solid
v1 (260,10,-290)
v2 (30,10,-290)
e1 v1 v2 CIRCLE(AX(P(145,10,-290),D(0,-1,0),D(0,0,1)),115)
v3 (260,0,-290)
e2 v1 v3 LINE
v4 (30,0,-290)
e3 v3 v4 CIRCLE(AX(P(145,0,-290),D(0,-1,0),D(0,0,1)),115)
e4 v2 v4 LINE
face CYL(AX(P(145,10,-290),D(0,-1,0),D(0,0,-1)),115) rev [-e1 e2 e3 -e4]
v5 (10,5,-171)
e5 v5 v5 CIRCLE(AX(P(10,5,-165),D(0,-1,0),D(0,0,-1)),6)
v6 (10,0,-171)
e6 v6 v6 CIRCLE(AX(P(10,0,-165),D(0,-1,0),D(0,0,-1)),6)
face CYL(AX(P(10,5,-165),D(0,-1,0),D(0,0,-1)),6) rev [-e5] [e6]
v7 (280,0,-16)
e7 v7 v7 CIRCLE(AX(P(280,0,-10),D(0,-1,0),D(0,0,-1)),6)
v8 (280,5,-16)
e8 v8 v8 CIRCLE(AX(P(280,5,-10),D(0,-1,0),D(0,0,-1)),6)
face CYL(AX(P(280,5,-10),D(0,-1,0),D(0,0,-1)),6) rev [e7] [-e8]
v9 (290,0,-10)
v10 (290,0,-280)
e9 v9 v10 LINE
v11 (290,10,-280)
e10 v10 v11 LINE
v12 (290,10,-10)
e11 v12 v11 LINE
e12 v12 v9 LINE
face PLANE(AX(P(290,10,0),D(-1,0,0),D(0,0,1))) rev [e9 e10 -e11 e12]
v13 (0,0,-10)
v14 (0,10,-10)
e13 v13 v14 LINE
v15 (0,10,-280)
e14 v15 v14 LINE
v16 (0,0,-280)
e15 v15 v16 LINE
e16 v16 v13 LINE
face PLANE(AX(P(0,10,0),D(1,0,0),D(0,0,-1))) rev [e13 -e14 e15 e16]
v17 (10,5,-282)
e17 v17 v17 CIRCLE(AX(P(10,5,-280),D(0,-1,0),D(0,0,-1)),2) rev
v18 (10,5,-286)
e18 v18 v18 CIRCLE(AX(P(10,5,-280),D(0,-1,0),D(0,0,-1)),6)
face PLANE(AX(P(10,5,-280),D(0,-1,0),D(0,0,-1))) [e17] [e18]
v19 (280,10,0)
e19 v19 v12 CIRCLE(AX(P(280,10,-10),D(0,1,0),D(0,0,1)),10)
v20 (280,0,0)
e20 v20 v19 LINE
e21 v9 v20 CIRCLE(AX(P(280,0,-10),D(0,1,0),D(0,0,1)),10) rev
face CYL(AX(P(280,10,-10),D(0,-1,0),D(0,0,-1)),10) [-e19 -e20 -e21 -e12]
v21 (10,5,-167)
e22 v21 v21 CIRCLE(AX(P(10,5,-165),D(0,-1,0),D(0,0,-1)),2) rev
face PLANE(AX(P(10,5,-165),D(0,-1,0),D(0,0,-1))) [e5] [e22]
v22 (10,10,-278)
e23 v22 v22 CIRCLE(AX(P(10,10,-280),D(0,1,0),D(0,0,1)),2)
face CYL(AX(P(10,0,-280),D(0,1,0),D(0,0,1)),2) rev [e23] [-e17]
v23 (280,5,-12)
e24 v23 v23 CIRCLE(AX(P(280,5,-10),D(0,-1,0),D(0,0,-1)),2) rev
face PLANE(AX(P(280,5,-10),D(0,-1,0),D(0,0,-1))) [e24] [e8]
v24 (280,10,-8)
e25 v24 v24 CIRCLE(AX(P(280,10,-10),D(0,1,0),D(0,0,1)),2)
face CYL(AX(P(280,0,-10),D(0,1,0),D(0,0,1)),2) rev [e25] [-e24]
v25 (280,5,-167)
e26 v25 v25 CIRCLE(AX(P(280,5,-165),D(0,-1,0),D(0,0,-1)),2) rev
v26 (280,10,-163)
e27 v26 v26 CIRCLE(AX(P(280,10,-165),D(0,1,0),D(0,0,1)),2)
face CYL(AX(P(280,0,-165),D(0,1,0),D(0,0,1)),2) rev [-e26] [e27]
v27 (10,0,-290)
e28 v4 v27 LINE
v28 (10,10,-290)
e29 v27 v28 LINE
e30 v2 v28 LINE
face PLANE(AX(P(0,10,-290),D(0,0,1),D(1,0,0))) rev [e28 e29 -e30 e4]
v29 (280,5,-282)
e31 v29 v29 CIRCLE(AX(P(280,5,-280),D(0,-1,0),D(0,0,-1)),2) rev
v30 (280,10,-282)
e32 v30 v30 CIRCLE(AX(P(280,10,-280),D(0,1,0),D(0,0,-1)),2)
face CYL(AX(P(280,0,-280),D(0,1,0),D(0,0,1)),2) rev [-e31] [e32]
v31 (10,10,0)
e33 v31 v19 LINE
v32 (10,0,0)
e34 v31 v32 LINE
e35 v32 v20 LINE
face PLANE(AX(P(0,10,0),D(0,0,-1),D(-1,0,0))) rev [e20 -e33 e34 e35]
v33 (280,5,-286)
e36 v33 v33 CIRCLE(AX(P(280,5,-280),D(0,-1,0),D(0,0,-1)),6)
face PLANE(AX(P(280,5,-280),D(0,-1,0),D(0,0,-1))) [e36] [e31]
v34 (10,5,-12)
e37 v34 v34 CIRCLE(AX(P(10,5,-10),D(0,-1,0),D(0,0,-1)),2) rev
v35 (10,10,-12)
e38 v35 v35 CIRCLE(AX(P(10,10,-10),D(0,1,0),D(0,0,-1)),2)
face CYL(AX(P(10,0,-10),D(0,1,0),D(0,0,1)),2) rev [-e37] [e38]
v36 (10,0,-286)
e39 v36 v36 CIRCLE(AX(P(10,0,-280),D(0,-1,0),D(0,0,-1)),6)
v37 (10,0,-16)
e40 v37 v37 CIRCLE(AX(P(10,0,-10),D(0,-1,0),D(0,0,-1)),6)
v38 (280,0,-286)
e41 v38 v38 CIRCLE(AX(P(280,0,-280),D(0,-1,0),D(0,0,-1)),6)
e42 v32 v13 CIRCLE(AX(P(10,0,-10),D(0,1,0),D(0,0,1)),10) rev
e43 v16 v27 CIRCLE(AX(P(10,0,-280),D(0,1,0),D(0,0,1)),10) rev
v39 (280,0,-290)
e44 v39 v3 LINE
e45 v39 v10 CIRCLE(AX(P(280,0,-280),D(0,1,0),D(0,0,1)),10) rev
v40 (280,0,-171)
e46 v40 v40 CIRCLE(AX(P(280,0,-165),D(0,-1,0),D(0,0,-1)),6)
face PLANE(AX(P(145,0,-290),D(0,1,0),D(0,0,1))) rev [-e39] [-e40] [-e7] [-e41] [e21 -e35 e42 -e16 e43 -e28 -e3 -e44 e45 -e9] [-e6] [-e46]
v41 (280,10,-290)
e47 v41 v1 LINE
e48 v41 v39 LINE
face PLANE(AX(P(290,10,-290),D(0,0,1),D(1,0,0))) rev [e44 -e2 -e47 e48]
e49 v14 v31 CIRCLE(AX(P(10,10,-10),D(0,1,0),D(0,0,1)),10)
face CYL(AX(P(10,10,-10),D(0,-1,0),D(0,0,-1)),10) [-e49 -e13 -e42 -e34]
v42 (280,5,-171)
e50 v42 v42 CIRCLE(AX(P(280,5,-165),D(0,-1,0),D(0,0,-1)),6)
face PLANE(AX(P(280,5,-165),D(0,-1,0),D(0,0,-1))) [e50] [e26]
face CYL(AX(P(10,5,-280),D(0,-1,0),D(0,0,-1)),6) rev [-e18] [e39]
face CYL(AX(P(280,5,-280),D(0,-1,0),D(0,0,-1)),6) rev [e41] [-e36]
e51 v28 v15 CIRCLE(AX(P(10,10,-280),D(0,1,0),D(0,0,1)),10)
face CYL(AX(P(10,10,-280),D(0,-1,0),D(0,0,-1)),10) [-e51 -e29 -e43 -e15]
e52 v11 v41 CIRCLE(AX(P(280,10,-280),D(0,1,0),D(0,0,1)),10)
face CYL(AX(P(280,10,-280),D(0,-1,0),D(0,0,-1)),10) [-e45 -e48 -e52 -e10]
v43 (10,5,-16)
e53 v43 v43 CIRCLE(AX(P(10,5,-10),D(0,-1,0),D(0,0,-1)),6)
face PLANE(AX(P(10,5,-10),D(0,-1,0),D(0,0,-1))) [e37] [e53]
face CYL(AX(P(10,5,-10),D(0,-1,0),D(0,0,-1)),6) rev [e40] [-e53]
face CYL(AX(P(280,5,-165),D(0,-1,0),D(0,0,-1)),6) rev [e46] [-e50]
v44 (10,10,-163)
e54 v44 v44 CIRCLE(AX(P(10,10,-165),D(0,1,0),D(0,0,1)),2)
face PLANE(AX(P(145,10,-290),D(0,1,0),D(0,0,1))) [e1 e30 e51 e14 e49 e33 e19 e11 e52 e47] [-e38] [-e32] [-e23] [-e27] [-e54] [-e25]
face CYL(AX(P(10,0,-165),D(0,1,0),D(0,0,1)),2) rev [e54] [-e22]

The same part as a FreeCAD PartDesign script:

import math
import FreeCAD as App
import Part
import Sketcher

V = App.Vector
Q = App.Units.Quantity


def edges_at(feature, points):
    """Names of the edges that pass closest to the given points."""
    edges = feature.Shape.Edges
    near = lambda p: min(range(len(edges)), key=lambda i: edges[i].distToShape(Part.Vertex(*p))[0])
    return sorted({f"Edge{near(p) + 1}" for p in points})

doc = App.newDocument("Part")
body = doc.addObject("PartDesign::Body", "Body")

# Sketch on XZ plane
sketch1 = body.newObject("Sketcher::SketchObject", "Sketch")
sketch1.AttachmentSupport = (doc.getObject("XZ_Plane"), [""])
sketch1.MapMode = "FlatFace"
sketch1.addGeometry([
    Part.LineSegment(V(0, 0, 0), V(290, 0, 0)),  # 0
    Part.LineSegment(V(290, 0, 0), V(290, -290, 0)),  # 1
    Part.LineSegment(V(290, -290, 0), V(260, -290, 0)),  # 2
    Part.ArcOfCircle(Part.Circle(V(145, -290, 0), V(0, 0, 1), 115), math.radians(0), math.radians(180)),  # 3
    Part.LineSegment(V(30, -290, 0), V(0, -290, 0)),  # 4
    Part.LineSegment(V(0, -290, 0), V(0, 0, 0)),  # 5
], False)
sketch1.addConstraint([
    Sketcher.Constraint("Coincident", 0, 2, 1, 1),
    Sketcher.Constraint("Coincident", 1, 2, 2, 1),
    Sketcher.Constraint("Coincident", 2, 2, 3, 1),
    Sketcher.Constraint("Coincident", 3, 2, 4, 1),
    Sketcher.Constraint("Coincident", 4, 2, 5, 1),
    Sketcher.Constraint("Coincident", 5, 2, 0, 1),
    Sketcher.Constraint("Horizontal", 0),
    Sketcher.Constraint("Vertical", 1),
    Sketcher.Constraint("Horizontal", 2),
    Sketcher.Constraint("Horizontal", 4),
    Sketcher.Constraint("Vertical", 5),
    Sketcher.Constraint("Coincident", 5, 2, -1, 1),
    Sketcher.Constraint("Horizontal", 3, 3, 1, 2),
    Sketcher.Constraint("Horizontal", 2, 2, 3, 2),
    Sketcher.Constraint("Equal", 2, 4),
    Sketcher.Constraint("Equal", 0, 1),
    Sketcher.Constraint("Radius", 3, Q("115 mm")),
    Sketcher.Constraint("DistanceX", 0, 1, 0, 2, Q("290 mm")),
])
pad1 = body.newObject("PartDesign::Pad", "Pad")
pad1.Profile = sketch1
pad1.Length = 10
pad1.Reversed = True

# Sketch on XZ plane
sketch2 = body.newObject("Sketcher::SketchObject", "Sketch001")
sketch2.AttachmentSupport = (doc.getObject("XZ_Plane"), [""])
sketch2.MapMode = "FlatFace"
sketch2.AttachmentOffset = App.Placement(V(0, 0, -10), App.Rotation())
sketch2.addGeometry([
    Part.Circle(V(10, -280, 0), V(0, 0, 1), 2),
    Part.Circle(V(280, -280, 0), V(0, 0, 1), 2),
    Part.Circle(V(280, -10, 0), V(0, 0, 1), 2),
    Part.Circle(V(10, -10, 0), V(0, 0, 1), 2),
], False)
sketch2.addConstraint([
    Sketcher.Constraint("Equal", 0, 1),
    Sketcher.Constraint("Equal", 1, 2),
    Sketcher.Constraint("Equal", 2, 3),
    Sketcher.Constraint("Horizontal", 0, 3, 1, 3),
    Sketcher.Constraint("Horizontal", 2, 3, 3, 3),
    Sketcher.Constraint("Vertical", 1, 3, 2, 3),
    Sketcher.Constraint("Vertical", 0, 3, 3, 3),
    Sketcher.Constraint("Diameter", 0, Q("4 mm")),
    Sketcher.Constraint("DistanceX", -1, 1, 0, 3, Q("10 mm")),
    Sketcher.Constraint("DistanceY", 0, 3, -1, 1, Q("280 mm")),
    Sketcher.Constraint("DistanceX", -1, 1, 1, 3, Q("280 mm")),
    Sketcher.Constraint("DistanceY", 2, 3, -1, 1, Q("10 mm")),
])
pocket1 = body.newObject("PartDesign::Pocket", "Pocket")
pocket1.Profile = sketch2
pocket1.Length = 10
pocket1.Reversed = True
doc.recompute()

fillet = body.newObject("PartDesign::Fillet", "Fillet")
fillet.Base = (pocket1, edges_at(pocket1, [
    (0, 5, -290),
    (290, 5, -290),
    (290, 5, 0),
    (0, 5, 0),
]))
fillet.Radius = 10

# Sketch on XZ plane
sketch3 = body.newObject("Sketcher::SketchObject", "Sketch002")
sketch3.AttachmentSupport = (doc.getObject("XZ_Plane"), [""])
sketch3.MapMode = "FlatFace"
sketch3.AttachmentOffset = App.Placement(V(0, 0, -10), App.Rotation())
sketch3.addGeometry([
    Part.Circle(V(10, -165, 0), V(0, 0, 1), 2),
    Part.Circle(V(280, -165, 0), V(0, 0, 1), 2),
], False)
sketch3.addConstraint([
    Sketcher.Constraint("Equal", 0, 1),
    Sketcher.Constraint("Horizontal", 0, 3, 1, 3),
    Sketcher.Constraint("Diameter", 0, Q("4 mm")),
    Sketcher.Constraint("DistanceX", -1, 1, 0, 3, Q("10 mm")),
    Sketcher.Constraint("DistanceY", 0, 3, -1, 1, Q("165 mm")),
    Sketcher.Constraint("DistanceX", -1, 1, 1, 3, Q("280 mm")),
])
pocket2 = body.newObject("PartDesign::Pocket", "Pocket001")
pocket2.Profile = sketch3
pocket2.Length = 10
pocket2.Reversed = True

# Sketch on XZ plane
sketch4 = body.newObject("Sketcher::SketchObject", "Sketch003")
sketch4.AttachmentSupport = (doc.getObject("XZ_Plane"), [""])
sketch4.MapMode = "FlatFace"
sketch4.addGeometry([
    Part.Circle(V(10, -10, 0), V(0, 0, 1), 6),  # 0
    Part.Circle(V(280, -10, 0), V(0, 0, 1), 6),  # 1
    Part.Circle(V(280, -165, 0), V(0, 0, 1), 6),  # 2
    Part.Circle(V(280, -280, 0), V(0, 0, 1), 6),  # 3
    Part.Circle(V(10, -280, 0), V(0, 0, 1), 6),  # 4
    Part.Circle(V(10, -165, 0), V(0, 0, 1), 6),  # 5
], False)
sketch4.addConstraint([
    Sketcher.Constraint("Equal", 0, 1),
    Sketcher.Constraint("Equal", 1, 2),
    Sketcher.Constraint("Equal", 2, 3),
    Sketcher.Constraint("Equal", 3, 4),
    Sketcher.Constraint("Equal", 4, 5),
    Sketcher.Constraint("Horizontal", 0, 3, 1, 3),
    Sketcher.Constraint("Horizontal", 3, 3, 4, 3),
    Sketcher.Constraint("Horizontal", 2, 3, 5, 3),
    Sketcher.Constraint("Vertical", 1, 3, 2, 3),
    Sketcher.Constraint("Vertical", 2, 3, 3, 3),
    Sketcher.Constraint("Vertical", 0, 3, 4, 3),
    Sketcher.Constraint("Vertical", 4, 3, 5, 3),
    Sketcher.Constraint("Diameter", 0, Q("12 mm")),
    Sketcher.Constraint("DistanceX", -1, 1, 0, 3, Q("10 mm")),
    Sketcher.Constraint("DistanceY", 0, 3, -1, 1, Q("10 mm")),
    Sketcher.Constraint("DistanceX", -1, 1, 1, 3, Q("280 mm")),
    Sketcher.Constraint("DistanceY", 2, 3, -1, 1, Q("165 mm")),
    Sketcher.Constraint("DistanceY", 3, 3, -1, 1, Q("280 mm")),
])
pocket3 = body.newObject("PartDesign::Pocket", "Pocket002")
pocket3.Profile = sketch4
pocket3.Length = 5

doc.recompute()
